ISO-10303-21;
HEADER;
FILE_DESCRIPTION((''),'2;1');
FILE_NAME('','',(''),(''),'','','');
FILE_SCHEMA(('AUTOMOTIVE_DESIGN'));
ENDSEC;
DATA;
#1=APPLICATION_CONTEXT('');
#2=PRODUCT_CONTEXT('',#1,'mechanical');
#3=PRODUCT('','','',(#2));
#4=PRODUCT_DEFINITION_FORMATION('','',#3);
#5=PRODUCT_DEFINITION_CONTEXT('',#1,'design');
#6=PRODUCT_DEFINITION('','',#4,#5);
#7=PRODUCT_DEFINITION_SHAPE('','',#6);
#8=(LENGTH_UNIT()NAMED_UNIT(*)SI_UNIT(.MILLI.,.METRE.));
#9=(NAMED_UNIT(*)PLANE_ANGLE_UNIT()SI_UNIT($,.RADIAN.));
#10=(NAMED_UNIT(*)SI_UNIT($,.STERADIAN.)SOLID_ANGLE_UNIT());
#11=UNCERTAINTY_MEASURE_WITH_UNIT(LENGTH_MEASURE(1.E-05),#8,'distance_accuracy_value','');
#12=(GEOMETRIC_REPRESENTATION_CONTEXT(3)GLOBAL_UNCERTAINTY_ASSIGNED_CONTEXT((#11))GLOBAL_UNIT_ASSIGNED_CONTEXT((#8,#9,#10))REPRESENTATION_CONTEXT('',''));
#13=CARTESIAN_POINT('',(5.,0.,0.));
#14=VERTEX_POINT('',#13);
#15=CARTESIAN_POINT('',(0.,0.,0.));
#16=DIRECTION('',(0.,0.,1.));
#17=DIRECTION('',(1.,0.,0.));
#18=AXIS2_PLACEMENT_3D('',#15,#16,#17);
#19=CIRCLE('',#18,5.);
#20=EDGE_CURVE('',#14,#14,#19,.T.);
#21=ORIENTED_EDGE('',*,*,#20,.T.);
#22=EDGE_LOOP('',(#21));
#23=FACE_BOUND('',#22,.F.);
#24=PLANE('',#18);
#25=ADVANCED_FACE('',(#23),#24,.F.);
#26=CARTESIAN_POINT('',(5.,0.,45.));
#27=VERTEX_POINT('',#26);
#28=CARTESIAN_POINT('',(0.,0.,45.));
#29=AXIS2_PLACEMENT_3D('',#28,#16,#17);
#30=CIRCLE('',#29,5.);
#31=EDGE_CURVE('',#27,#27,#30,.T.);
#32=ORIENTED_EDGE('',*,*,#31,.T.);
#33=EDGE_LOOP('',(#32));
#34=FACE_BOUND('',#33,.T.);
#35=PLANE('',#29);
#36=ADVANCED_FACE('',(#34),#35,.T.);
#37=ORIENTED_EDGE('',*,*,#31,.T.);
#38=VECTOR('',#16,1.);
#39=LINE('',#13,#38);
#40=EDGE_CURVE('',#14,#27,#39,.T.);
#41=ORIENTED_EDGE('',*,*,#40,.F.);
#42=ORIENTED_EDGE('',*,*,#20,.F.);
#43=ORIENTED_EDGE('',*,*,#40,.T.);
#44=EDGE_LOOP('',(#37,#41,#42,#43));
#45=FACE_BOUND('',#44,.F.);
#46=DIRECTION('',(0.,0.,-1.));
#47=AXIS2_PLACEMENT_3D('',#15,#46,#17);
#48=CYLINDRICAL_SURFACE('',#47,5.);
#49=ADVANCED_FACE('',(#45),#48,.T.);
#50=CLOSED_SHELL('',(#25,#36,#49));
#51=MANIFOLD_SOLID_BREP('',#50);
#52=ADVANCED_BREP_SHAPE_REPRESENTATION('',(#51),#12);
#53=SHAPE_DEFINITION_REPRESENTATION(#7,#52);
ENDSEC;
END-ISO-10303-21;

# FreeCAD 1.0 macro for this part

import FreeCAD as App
import Part
import Sketcher
Q = App.Units.Quantity

doc = App.newDocument("Part")
body = doc.addObject("PartDesign::Body", "Body")

sketch1 = body.newObject("Sketcher::SketchObject", "Sketch")
sketch1.AttachmentSupport = (doc.getObject("XY_Plane"), [""])
sketch1.MapMode = "FlatFace"
sketch1.addGeometry(Part.Circle(App.Vector(0, 0, 0), App.Vector(0, 0, 1), 5), False)
sketch1.addConstraint([
    Sketcher.Constraint("Coincident", 0, 3, -1, 1),
    Sketcher.Constraint("Diameter", 0, Q("10 mm")),
])
pad1 = body.newObject("PartDesign::Pad", "Pad")
pad1.Profile = sketch1
pad1.Length = 45

doc.recompute()
